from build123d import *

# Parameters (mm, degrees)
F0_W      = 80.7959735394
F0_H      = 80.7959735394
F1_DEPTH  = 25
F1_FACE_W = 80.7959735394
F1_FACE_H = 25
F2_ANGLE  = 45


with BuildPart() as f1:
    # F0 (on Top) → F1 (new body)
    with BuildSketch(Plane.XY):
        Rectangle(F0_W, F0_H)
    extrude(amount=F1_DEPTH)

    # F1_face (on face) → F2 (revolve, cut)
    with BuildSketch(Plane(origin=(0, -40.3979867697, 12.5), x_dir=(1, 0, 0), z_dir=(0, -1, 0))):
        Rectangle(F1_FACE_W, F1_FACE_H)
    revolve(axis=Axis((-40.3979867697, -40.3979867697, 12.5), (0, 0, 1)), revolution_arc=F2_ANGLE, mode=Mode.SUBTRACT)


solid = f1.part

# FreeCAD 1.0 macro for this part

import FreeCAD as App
import Part
import Sketcher
Q = App.Units.Quantity

doc = App.newDocument("Part")
body = doc.addObject("PartDesign::Body", "Body")

# Sketch on XY plane
sketch1 = body.newObject("Sketcher::SketchObject", "Sketch")
sketch1.AttachmentSupport = (doc.getObject("XY_Plane"), [""])
sketch1.MapMode = "FlatFace"
sketch1.addGeometry([
    Part.LineSegment(App.Vector(-40.397987, 40.397987, 0), App.Vector(-40.397987, -40.397987, 0)),
    Part.LineSegment(App.Vector(-40.397987, -40.397987, 0), App.Vector(40.397987, -40.397987, 0)),
    Part.LineSegment(App.Vector(40.397987, -40.397987, 0), App.Vector(40.397987, 40.397987, 0)),
    Part.LineSegment(App.Vector(40.397987, 40.397987, 0), App.Vector(-40.397987, 40.397987, 0)),
], False)
sketch1.addConstraint([
    Sketcher.Constraint("Coincident", 0, 2, 1, 1),
    Sketcher.Constraint("Coincident", 1, 2, 2, 1),
    Sketcher.Constraint("Coincident", 2, 2, 3, 1),
    Sketcher.Constraint("Coincident", 3, 2, 0, 1),
    Sketcher.Constraint("Vertical", 0),
    Sketcher.Constraint("Horizontal", 1),
    Sketcher.Constraint("Vertical", 2),
    Sketcher.Constraint("Horizontal", 3),
    Sketcher.Constraint("Symmetric", 0, 2, 2, 2, -1, 1),
    Sketcher.Constraint("Equal", 3, 0),
    Sketcher.Constraint("DistanceX", 1, 1, 1, 2, Q("80.795974 mm")),
])
pad1 = body.newObject("PartDesign::Pad", "Pad")
pad1.Profile = sketch1
pad1.Length = 25

# Sketch on XZ plane
sketch2 = body.newObject("Sketcher::SketchObject", "Sketch001")
sketch2.AttachmentSupport = (doc.getObject("XZ_Plane"), [""])
sketch2.MapMode = "FlatFace"
sketch2.AttachmentOffset = App.Placement(App.Vector(0, 0, 40.397987), App.Rotation())
sketch2.addGeometry([
    Part.LineSegment(App.Vector(-40.397987, 25, 0), App.Vector(-40.397987, 0, 0)),
    Part.LineSegment(App.Vector(-40.397987, 0, 0), App.Vector(40.397987, 0, 0)),
    Part.LineSegment(App.Vector(40.397987, 0, 0), App.Vector(40.397987, 25, 0)),
    Part.LineSegment(App.Vector(40.397987, 25, 0), App.Vector(-40.397987, 25, 0)),
], False)
sketch2.addGeometry(Part.LineSegment(App.Vector(-40.397987, 0, 0), App.Vector(-40.397987, 25, 0)), True)  # axis
sketch2.addConstraint([
    Sketcher.Constraint("Coincident", 0, 2, 1, 1),
    Sketcher.Constraint("Coincident", 1, 2, 2, 1),
    Sketcher.Constraint("Coincident", 2, 2, 3, 1),
    Sketcher.Constraint("Coincident", 3, 2, 0, 1),
    Sketcher.Constraint("Vertical", 0),
    Sketcher.Constraint("Horizontal", 1),
    Sketcher.Constraint("Vertical", 2),
    Sketcher.Constraint("Horizontal", 3),
    Sketcher.Constraint("Vertical", 4),
    Sketcher.Constraint("Coincident", 4, 1, 0, 2),
    Sketcher.Constraint("Symmetric", 0, 2, 1, 2, -1, 1),
    Sketcher.Constraint("Horizontal", 2, 2, 4, 2),
    Sketcher.Constraint("DistanceY", 0, 2, 0, 1, Q("25 mm")),
    Sketcher.Constraint("DistanceX", 1, 1, 1, 2, Q("80.795974 mm")),
])
groove = body.newObject("PartDesign::Groove", "Groove")
groove.Profile = sketch2
groove.ReferenceAxis = (sketch2, ["Axis0"])
groove.Angle = 45

doc.recompute()
